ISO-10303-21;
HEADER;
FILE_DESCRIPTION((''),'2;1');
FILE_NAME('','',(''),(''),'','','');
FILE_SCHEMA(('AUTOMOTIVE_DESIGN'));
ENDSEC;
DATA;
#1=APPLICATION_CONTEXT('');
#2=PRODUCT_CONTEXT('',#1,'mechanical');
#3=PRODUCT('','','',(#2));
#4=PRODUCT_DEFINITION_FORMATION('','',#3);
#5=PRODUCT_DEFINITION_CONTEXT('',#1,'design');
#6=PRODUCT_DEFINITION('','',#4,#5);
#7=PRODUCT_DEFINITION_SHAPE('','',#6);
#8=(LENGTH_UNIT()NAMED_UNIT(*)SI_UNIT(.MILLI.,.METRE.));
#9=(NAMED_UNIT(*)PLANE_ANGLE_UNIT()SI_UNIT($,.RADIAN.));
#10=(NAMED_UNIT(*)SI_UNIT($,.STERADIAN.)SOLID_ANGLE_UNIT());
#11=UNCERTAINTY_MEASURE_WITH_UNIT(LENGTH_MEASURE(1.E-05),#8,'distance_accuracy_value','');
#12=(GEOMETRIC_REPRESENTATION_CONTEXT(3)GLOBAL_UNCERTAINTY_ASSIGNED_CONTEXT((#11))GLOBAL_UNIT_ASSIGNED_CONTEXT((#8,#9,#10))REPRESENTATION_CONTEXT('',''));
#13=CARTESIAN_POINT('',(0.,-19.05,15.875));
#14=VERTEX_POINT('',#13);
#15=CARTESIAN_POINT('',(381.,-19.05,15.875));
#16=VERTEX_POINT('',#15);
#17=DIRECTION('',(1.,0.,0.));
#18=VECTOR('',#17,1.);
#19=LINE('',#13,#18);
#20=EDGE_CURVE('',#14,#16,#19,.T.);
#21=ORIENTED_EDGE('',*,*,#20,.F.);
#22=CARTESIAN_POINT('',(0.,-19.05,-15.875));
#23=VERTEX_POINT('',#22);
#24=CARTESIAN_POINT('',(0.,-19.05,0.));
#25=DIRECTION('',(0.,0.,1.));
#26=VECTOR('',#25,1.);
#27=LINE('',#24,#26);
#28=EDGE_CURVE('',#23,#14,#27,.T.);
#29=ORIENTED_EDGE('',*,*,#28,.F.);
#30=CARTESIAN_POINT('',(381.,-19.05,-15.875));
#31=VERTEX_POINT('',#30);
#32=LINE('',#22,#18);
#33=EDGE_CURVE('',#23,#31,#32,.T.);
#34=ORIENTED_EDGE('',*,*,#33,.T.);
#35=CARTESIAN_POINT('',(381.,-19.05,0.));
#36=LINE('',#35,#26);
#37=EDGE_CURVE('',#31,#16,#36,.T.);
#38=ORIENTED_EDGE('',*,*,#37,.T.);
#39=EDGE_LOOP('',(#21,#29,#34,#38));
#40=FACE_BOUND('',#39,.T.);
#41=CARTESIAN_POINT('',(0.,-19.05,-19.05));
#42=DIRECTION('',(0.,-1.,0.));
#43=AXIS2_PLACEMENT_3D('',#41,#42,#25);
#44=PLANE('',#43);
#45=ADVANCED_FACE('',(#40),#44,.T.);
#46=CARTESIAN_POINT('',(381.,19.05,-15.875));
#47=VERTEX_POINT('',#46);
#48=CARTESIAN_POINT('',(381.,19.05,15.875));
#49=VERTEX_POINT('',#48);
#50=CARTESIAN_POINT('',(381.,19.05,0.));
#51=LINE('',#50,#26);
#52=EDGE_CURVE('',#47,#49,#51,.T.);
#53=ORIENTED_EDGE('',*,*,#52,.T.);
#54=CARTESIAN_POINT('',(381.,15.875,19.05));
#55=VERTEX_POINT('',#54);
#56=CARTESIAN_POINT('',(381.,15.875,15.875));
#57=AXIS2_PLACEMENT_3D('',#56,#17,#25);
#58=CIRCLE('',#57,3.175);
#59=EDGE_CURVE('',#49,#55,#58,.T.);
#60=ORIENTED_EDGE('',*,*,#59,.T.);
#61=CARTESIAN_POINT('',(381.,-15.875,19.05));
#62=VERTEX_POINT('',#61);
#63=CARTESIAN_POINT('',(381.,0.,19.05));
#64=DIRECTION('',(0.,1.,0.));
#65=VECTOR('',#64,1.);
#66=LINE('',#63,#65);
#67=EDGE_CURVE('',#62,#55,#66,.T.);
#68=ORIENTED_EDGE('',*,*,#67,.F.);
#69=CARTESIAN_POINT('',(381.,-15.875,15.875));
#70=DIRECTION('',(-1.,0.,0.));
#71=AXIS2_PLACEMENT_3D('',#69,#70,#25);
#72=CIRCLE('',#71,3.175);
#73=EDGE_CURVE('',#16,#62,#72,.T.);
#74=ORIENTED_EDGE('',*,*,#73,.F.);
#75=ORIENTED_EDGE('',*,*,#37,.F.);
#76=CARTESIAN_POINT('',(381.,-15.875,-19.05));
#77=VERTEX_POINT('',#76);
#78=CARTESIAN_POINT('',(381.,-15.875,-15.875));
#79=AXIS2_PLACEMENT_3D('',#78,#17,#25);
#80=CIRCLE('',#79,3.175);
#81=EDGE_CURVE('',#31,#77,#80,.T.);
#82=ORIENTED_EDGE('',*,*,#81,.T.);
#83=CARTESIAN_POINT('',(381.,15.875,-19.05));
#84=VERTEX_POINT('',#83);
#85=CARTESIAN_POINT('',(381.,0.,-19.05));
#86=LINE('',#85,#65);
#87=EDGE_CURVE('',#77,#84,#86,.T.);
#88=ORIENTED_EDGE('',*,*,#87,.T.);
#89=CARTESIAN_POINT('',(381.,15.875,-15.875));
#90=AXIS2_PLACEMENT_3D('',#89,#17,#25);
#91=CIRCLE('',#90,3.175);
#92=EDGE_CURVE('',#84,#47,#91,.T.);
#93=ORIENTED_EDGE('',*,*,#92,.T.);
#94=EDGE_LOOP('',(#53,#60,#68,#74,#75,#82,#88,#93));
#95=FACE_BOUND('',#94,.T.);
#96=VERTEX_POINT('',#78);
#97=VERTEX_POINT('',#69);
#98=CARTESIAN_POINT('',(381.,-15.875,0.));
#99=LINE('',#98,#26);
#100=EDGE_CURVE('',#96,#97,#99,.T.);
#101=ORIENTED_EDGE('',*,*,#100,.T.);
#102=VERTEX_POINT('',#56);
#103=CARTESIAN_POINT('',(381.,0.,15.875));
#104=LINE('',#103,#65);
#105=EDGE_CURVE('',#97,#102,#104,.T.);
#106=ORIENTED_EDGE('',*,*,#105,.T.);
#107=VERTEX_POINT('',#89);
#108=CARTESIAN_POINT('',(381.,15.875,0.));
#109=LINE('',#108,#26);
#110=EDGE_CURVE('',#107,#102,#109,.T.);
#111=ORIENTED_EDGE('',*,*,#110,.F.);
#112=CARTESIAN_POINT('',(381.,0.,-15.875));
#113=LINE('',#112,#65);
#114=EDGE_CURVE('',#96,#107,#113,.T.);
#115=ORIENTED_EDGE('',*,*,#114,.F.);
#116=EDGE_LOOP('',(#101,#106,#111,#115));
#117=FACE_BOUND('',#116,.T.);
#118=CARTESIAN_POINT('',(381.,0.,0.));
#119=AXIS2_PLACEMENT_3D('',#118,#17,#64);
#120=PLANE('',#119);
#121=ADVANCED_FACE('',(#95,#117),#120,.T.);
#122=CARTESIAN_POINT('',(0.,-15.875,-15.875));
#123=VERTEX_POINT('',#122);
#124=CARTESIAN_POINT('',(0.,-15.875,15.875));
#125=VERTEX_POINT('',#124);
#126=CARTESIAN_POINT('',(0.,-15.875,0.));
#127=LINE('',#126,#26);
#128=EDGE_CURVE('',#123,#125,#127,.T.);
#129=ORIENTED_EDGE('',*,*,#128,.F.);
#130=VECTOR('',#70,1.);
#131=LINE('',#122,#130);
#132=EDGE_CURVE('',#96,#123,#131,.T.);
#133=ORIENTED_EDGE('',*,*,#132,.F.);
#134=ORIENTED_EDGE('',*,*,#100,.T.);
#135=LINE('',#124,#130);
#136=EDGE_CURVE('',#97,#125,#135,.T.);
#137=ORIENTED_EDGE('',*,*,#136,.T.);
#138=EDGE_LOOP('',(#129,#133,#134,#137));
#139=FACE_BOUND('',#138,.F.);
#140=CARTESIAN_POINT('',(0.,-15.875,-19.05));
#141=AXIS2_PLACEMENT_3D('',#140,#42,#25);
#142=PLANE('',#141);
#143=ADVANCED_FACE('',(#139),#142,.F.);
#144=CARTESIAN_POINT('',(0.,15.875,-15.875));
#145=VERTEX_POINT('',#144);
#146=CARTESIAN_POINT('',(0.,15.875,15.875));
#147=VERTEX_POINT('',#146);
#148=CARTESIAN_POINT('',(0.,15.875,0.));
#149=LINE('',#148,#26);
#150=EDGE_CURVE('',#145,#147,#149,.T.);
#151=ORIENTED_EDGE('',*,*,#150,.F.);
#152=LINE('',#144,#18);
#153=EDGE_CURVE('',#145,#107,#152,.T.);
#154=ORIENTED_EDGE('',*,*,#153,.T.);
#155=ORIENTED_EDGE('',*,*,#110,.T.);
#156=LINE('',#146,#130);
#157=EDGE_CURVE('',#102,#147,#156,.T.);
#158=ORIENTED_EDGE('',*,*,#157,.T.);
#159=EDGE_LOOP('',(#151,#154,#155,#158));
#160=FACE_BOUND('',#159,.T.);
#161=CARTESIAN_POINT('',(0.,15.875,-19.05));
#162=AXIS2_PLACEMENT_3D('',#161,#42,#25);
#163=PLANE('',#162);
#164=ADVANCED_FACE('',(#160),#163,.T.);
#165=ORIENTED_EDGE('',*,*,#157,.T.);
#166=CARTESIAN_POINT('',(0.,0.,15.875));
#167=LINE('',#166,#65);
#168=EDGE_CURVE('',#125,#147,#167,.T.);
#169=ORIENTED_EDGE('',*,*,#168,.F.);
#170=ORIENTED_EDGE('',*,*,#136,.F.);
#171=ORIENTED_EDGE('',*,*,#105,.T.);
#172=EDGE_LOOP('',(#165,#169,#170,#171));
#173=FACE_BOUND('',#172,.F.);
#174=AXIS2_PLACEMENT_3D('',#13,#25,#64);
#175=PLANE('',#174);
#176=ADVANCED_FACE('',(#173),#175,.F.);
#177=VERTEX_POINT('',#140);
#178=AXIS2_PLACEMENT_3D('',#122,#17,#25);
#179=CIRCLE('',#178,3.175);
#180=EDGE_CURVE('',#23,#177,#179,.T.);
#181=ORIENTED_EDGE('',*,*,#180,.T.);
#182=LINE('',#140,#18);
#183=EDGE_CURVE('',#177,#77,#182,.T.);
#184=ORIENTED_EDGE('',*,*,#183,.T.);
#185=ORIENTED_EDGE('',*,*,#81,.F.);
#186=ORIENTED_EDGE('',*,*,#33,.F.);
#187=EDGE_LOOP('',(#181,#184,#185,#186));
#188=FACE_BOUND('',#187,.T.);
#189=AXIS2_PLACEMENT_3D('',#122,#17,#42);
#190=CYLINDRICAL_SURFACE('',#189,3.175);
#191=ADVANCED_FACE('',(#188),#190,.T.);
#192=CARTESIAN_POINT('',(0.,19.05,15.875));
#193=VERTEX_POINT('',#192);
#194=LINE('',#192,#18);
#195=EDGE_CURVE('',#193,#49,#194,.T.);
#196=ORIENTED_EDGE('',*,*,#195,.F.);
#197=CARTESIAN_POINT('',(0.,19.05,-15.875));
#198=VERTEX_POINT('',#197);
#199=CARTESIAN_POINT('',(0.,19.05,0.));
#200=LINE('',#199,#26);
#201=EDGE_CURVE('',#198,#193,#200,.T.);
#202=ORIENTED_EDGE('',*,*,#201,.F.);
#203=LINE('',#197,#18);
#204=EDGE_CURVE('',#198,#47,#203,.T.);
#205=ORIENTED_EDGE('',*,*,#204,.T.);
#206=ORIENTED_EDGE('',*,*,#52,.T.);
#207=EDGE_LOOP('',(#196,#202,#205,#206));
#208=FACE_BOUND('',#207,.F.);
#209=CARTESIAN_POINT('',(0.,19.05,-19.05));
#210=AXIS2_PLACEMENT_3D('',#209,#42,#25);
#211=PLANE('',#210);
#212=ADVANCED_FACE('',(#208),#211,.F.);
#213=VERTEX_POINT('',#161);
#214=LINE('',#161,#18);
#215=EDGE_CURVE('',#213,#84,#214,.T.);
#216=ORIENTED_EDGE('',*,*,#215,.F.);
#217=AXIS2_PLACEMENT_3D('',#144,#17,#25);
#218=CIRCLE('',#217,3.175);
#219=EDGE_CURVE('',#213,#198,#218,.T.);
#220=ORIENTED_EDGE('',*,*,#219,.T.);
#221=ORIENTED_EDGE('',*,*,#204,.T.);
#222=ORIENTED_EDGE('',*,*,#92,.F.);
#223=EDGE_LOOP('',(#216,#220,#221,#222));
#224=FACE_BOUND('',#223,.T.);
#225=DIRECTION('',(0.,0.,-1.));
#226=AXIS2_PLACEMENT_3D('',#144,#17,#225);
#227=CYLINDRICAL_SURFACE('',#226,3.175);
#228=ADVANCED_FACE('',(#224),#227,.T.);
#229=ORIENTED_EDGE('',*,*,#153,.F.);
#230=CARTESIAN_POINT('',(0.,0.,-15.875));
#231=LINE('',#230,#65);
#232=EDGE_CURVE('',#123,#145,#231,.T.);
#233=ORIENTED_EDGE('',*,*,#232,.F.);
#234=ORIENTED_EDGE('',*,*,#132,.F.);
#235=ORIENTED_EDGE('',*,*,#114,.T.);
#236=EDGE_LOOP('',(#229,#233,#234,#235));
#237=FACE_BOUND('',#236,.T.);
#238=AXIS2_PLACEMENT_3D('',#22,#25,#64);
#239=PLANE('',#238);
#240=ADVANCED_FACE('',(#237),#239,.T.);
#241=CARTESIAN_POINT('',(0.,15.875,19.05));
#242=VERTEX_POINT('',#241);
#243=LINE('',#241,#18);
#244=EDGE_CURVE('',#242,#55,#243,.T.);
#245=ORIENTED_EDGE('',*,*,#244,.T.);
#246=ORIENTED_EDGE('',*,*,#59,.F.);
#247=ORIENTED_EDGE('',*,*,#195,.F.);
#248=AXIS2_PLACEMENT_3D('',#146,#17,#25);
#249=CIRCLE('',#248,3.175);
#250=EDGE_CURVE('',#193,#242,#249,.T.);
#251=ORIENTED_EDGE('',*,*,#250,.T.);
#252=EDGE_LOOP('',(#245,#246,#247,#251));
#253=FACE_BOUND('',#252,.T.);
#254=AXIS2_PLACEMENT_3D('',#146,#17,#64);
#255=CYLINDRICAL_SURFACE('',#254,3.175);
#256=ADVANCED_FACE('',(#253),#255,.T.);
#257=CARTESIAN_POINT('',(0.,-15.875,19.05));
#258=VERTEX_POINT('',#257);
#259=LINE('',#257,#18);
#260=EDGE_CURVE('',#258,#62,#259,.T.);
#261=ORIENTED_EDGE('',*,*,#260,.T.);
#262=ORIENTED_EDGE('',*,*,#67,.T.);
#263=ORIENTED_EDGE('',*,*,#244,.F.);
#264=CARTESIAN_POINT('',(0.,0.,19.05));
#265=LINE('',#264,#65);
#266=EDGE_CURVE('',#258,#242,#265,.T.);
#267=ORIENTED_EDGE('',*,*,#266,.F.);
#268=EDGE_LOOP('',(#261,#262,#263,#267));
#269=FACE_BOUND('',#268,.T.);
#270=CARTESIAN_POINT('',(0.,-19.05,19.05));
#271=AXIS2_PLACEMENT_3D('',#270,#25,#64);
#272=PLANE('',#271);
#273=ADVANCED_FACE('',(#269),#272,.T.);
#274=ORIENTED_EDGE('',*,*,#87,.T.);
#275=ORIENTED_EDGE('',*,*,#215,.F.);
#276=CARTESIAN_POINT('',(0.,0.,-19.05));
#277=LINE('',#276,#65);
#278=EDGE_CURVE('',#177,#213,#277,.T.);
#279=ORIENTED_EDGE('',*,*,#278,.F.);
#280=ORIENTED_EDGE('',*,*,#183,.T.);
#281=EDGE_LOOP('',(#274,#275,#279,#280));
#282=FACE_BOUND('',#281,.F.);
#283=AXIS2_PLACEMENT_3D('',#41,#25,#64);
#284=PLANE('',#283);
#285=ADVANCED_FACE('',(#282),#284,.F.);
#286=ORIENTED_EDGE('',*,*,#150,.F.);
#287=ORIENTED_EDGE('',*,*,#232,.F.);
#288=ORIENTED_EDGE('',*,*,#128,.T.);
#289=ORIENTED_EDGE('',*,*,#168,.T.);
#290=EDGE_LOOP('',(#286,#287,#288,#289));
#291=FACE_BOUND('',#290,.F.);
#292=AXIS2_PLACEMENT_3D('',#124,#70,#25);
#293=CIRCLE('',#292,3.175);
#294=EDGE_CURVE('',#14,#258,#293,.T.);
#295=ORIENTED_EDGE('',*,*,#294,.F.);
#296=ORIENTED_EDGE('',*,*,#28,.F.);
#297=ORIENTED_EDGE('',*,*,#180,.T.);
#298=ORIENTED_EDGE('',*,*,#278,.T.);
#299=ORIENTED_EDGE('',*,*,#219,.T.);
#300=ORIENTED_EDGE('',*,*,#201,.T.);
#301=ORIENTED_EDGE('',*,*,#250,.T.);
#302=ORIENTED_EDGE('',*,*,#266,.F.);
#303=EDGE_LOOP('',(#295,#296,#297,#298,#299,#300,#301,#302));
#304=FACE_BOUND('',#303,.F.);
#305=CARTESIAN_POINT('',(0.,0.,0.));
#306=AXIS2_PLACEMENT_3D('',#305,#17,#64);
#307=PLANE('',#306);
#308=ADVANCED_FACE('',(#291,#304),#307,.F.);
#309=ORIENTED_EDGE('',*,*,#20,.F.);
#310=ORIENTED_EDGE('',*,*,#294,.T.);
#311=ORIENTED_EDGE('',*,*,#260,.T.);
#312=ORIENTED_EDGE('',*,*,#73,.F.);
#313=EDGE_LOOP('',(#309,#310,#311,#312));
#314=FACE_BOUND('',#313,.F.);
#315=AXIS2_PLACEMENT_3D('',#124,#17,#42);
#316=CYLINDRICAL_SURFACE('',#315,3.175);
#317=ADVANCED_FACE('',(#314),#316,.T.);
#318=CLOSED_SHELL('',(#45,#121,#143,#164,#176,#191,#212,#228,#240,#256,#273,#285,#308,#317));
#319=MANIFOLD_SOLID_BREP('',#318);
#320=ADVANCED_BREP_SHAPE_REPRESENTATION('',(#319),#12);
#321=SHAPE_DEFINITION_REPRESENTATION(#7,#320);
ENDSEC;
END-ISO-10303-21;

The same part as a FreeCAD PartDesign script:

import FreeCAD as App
import Part
import Sketcher

V = App.Vector
Q = App.Units.Quantity


def edges_at(feature, points):
    """Names of the edges that pass closest to the given points."""
    edges = feature.Shape.Edges
    near = lambda p: min(range(len(edges)), key=lambda i: edges[i].distToShape(Part.Vertex(*p))[0])
    return sorted({f"Edge{near(p) + 1}" for p in points})


def faces_at(feature, points):
    """Names of the faces that lie closest to the given points."""
    faces = feature.Shape.Faces
    near = lambda p: min(range(len(faces)), key=lambda i: faces[i].distToShape(Part.Vertex(*p))[0])
    return sorted({f"Face{near(p) + 1}" for p in points})

doc = App.newDocument("Part")
body = doc.addObject("PartDesign::Body", "Body")

sketch1 = doc.addObject("Sketcher::SketchObject", "Sketch")
body.addObject(sketch1)
sketch1.AttachmentSupport = (doc.YZ_Plane, [""])
sketch1.MapMode = "FlatFace"
sketch1.addGeometry([
    Part.LineSegment(V(-19, 19, 0), V(-19, -19, 0)),
    Part.LineSegment(V(-19, -19, 0), V(19, -19, 0)),
    Part.LineSegment(V(19, -19, 0), V(19, 19, 0)),
    Part.LineSegment(V(19, 19, 0), V(-19, 19, 0)),
], False)
sketch1.addConstraint([
    Sketcher.Constraint("Coincident", 0, 2, 1, 1),
    Sketcher.Constraint("Coincident", 1, 2, 2, 1),
    Sketcher.Constraint("Coincident", 2, 2, 3, 1),
    Sketcher.Constraint("Coincident", 3, 2, 0, 1),
    Sketcher.Constraint("Vertical", 0),
    Sketcher.Constraint("Horizontal", 1),
    Sketcher.Constraint("Vertical", 2),
    Sketcher.Constraint("Horizontal", 3),
    Sketcher.Constraint("Symmetric", 0, 2, 2, 2, -1, 1),
    Sketcher.Constraint("Equal", 3, 0),
    Sketcher.Constraint("DistanceX", 1, 1, 1, 2, Q("1.5 in")),
])
pad1 = doc.addObject("PartDesign::Pad", "Pad")
body.addObject(pad1)
pad1.Profile = sketch1
pad1.Length = Q("15 in")
doc.recompute()

thickness = doc.addObject("PartDesign::Thickness", "Thickness")
body.addObject(thickness)
thickness.Base = (pad1, faces_at(pad1, [(381, 0, 0), (0, 0, 0)]))
thickness.Value = Q("0.125 in")
thickness.Reversed = True
thickness.Join = "Arc"
doc.recompute()

fillet = doc.addObject("PartDesign::Fillet", "Fillet")
body.addObject(fillet)
fillet.Base = (thickness, edges_at(thickness, [
    (190.5, -19.05, 19.05),
    (190.5, 19.05, 19.05),
    (190.5, -19.05, -19.05),
    (190.5, 19.05, -19.05),
]))
fillet.Radius = Q("0.125 in")

doc.recompute()
